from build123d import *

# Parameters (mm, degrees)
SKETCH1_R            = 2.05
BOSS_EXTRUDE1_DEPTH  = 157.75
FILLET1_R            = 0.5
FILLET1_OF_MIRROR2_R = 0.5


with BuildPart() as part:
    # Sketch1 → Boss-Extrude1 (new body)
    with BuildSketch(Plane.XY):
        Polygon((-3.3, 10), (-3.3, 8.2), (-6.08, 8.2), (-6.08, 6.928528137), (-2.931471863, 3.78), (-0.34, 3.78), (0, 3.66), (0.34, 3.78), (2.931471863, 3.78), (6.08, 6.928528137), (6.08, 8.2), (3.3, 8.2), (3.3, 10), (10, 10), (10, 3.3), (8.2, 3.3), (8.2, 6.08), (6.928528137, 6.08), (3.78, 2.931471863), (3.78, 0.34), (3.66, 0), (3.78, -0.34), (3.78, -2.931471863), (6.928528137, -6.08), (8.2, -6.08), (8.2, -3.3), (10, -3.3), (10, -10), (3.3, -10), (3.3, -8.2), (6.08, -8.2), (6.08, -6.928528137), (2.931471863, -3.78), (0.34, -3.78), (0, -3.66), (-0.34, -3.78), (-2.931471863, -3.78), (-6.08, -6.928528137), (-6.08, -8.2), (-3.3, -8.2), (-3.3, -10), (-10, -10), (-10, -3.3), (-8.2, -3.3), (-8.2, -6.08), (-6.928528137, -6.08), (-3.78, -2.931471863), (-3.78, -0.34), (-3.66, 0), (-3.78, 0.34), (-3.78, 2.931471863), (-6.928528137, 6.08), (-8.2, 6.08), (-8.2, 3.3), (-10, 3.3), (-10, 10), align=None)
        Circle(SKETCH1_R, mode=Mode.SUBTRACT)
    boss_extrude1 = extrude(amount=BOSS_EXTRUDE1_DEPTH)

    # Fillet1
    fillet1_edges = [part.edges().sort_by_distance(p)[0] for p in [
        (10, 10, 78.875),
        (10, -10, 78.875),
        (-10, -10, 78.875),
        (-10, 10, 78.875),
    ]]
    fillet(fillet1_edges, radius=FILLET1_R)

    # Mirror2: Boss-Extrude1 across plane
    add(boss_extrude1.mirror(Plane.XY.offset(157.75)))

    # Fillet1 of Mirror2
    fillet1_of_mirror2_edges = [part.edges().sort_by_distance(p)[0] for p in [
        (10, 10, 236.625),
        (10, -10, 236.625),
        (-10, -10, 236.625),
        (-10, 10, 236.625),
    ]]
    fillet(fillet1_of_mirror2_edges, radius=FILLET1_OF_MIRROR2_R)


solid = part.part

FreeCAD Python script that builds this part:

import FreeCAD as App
import Part
import Sketcher

V = App.Vector
Q = App.Units.Quantity


def edges_at(feature, points):
    """Names of the edges that pass closest to the given points."""
    edges = feature.Shape.Edges
    near = lambda p: min(range(len(edges)), key=lambda i: edges[i].distToShape(Part.Vertex(*p))[0])
    return sorted({f"Edge{near(p) + 1}" for p in points})


def add_polygon(sketch, points):
    """Adds a closed chain of lines whose ends are joined by coincident constraints."""
    first, n = sketch.GeometryCount, len(points)
    for a, b in zip(points, points[1:] + points[:1]):
        sketch.addGeometry(Part.LineSegment(App.Vector(*a, 0), App.Vector(*b, 0)), False)
    for i in range(n):
        sketch.addConstraint(Sketcher.Constraint("Coincident", first + i, 2, first + (i + 1) % n, 1))

doc = App.newDocument("Part")
body = doc.addObject("PartDesign::Body", "Body")

sketch1 = body.newObject("Sketcher::SketchObject", "Sketch")
sketch1.AttachmentSupport = (doc.getObject("XY_Plane"), [""])
sketch1.MapMode = "FlatFace"
add_polygon(sketch1, [(-3.3, 8.2), (-3.3, 10), (-10, 10), (-10, 3.3), (-8.2, 3.3), (-8.2, 6.08), (-6.93, 6.08), (-3.78, 2.93), (-3.78, 0.34), (-3.66, 0), (-3.78, -0.34), (-3.78, -2.93), (-6.93, -6.08), (-8.2, -6.08), (-8.2, -3.3), (-10, -3.3), (-10, -10), (-3.3, -10), (-3.3, -8.2), (-6.08, -8.2), (-6.08, -6.93), (-2.93, -3.78), (-0.34, -3.78), (0, -3.66), (0.34, -3.78), (2.93, -3.78), (6.08, -6.93), (6.08, -8.2), (3.3, -8.2), (3.3, -10), (10, -10), (10, -3.3), (8.2, -3.3), (8.2, -6.08), (6.93, -6.08), (3.78, -2.93), (3.78, -0.34), (3.66, 0), (3.78, 0.34), (3.78, 2.93), (6.93, 6.08), (8.2, 6.08), (8.2, 3.3), (10, 3.3), (10, 10), (3.3, 10), (3.3, 8.2), (6.08, 8.2), (6.08, 6.93), (2.93, 3.78), (0.34, 3.78), (0, 3.66), (-0.34, 3.78), (-2.93, 3.78), (-6.08, 6.93), (-6.08, 8.2)])
sketch1.addGeometry(Part.Circle(V(0, 0, 0), V(0, 0, 1), 2.05), False)
sketch1.addConstraint(Sketcher.Constraint("Vertical", 0))
sketch1.addConstraint(Sketcher.Constraint("Horizontal", 1))
sketch1.addConstraint(Sketcher.Constraint("Vertical", 2))
sketch1.addConstraint(Sketcher.Constraint("Horizontal", 3))
sketch1.addConstraint(Sketcher.Constraint("Vertical", 4))
sketch1.addConstraint(Sketcher.Constraint("Horizontal", 5))
sketch1.addConstraint(Sketcher.Constraint("Vertical", 7))
sketch1.addConstraint(Sketcher.Constraint("Vertical", 10))
sketch1.addConstraint(Sketcher.Constraint("Horizontal", 12))
sketch1.addConstraint(Sketcher.Constraint("Vertical", 13))
sketch1.addConstraint(Sketcher.Constraint("Horizontal", 14))
sketch1.addConstraint(Sketcher.Constraint("Vertical", 15))
sketch1.addConstraint(Sketcher.Constraint("Horizontal", 16))
sketch1.addConstraint(Sketcher.Constraint("Vertical", 17))
sketch1.addConstraint(Sketcher.Constraint("Horizontal", 18))
sketch1.addConstraint(Sketcher.Constraint("Vertical", 19))
sketch1.addConstraint(Sketcher.Constraint("Horizontal", 21))
sketch1.addConstraint(Sketcher.Constraint("Horizontal", 24))
sketch1.addConstraint(Sketcher.Constraint("Vertical", 26))
sketch1.addConstraint(Sketcher.Constraint("Horizontal", 27))
sketch1.addConstraint(Sketcher.Constraint("Vertical", 28))
sketch1.addConstraint(Sketcher.Constraint("Horizontal", 29))
sketch1.addConstraint(Sketcher.Constraint("Vertical", 30))
sketch1.addConstraint(Sketcher.Constraint("Horizontal", 31))
sketch1.addConstraint(Sketcher.Constraint("Vertical", 32))
sketch1.addConstraint(Sketcher.Constraint("Horizontal", 33))
sketch1.addConstraint(Sketcher.Constraint("Vertical", 35))
sketch1.addConstraint(Sketcher.Constraint("Vertical", 38))
sketch1.addConstraint(Sketcher.Constraint("Horizontal", 40))
sketch1.addConstraint(Sketcher.Constraint("Vertical", 41))
sketch1.addConstraint(Sketcher.Constraint("Horizontal", 42))
sketch1.addConstraint(Sketcher.Constraint("Vertical", 43))
sketch1.addConstraint(Sketcher.Constraint("Horizontal", 44))
sketch1.addConstraint(Sketcher.Constraint("Vertical", 45))
sketch1.addConstraint(Sketcher.Constraint("Horizontal", 46))
sketch1.addConstraint(Sketcher.Constraint("Vertical", 47))
sketch1.addConstraint(Sketcher.Constraint("Horizontal", 49))
sketch1.addConstraint(Sketcher.Constraint("Horizontal", 52))
sketch1.addConstraint(Sketcher.Constraint("Vertical", 54))
sketch1.addConstraint(Sketcher.Constraint("Horizontal", 55))
sketch1.addConstraint(Sketcher.Constraint("Coincident", 56, 3, -1, 1))
sketch1.addConstraint(Sketcher.Constraint("Symmetric", 0, 2, 28, 2, -1, 1))
sketch1.addConstraint(Sketcher.Constraint("Symmetric", 2, 2, 30, 2, -1, 1))
sketch1.addConstraint(Sketcher.Constraint("Symmetric", 4, 2, 32, 2, -1, 1))
sketch1.addConstraint(Sketcher.Constraint("Symmetric", 6, 2, 34, 2, -1, 1))
sketch1.addConstraint(Sketcher.Constraint("Symmetric", 8, 2, 36, 2, -1, 1))
sketch1.addConstraint(Sketcher.Constraint("Symmetric", 9, 2, 37, 2, -1, 1))
sketch1.addConstraint(Sketcher.Constraint("Symmetric", 11, 2, 39, 2, -1, 1))
sketch1.addConstraint(Sketcher.Constraint("Symmetric", 13, 2, 41, 2, -1, 1))
sketch1.addConstraint(Sketcher.Constraint("Symmetric", 15, 2, 43, 2, -1, 1))
sketch1.addConstraint(Sketcher.Constraint("Symmetric", 17, 2, 45, 2, -1, 1))
sketch1.addConstraint(Sketcher.Constraint("Symmetric", 19, 2, 47, 2, -1, 1))
sketch1.addConstraint(Sketcher.Constraint("Symmetric", 20, 2, 48, 2, -1, 1))
sketch1.addConstraint(Sketcher.Constraint("Symmetric", 22, 2, 50, 2, -1, 1))
sketch1.addConstraint(Sketcher.Constraint("Symmetric", 23, 2, 51, 2, -1, 1))
sketch1.addConstraint(Sketcher.Constraint("Symmetric", 25, 2, 53, 2, -1, 1))
sketch1.addConstraint(Sketcher.Constraint("Symmetric", 21, 2, 23, 2, -2))
sketch1.addConstraint(Sketcher.Constraint("Symmetric", 19, 2, 25, 2, -2))
sketch1.addConstraint(Sketcher.Constraint("Symmetric", 17, 2, 27, 2, -2))
sketch1.addConstraint(Sketcher.Constraint("Symmetric", 15, 2, 29, 2, -2))
sketch1.addConstraint(Sketcher.Constraint("Symmetric", 13, 2, 31, 2, -2))
sketch1.addConstraint(Sketcher.Constraint("Symmetric", 11, 2, 33, 2, -2))
sketch1.addConstraint(Sketcher.Constraint("Symmetric", 10, 2, 34, 2, -2))
sketch1.addConstraint(Sketcher.Constraint("PointOnObject", 8, 2, -1))
sketch1.addConstraint(Sketcher.Constraint("PointOnObject", 22, 2, -2))
sketch1.addConstraint(Sketcher.Constraint("Perpendicular", 6, 11))
sketch1.addConstraint(Sketcher.Constraint("Parallel", 11, 20))
sketch1.addConstraint(Sketcher.Constraint("Perpendicular", 8, 22))
sketch1.addConstraint(Sketcher.Constraint("Perpendicular", 9, 23))
sketch1.addConstraint(Sketcher.Constraint("Perpendicular", 20, 25))
sketch1.addConstraint(Sketcher.Constraint("Parallel", 25, 34))
sketch1.addConstraint(Sketcher.Constraint("Perpendicular", 22, 36))
sketch1.addConstraint(Sketcher.Constraint("Perpendicular", 34, 39))
sketch1.addConstraint(Sketcher.Constraint("Perpendicular", 36, 50))
sketch1.addConstraint(Sketcher.Constraint("Perpendicular", 48, 53))
sketch1.addConstraint(Sketcher.Constraint("Horizontal", 46, 2, 54, 2))
sketch1.addConstraint(Sketcher.Constraint("Equal", 42, 0))
sketch1.addConstraint(Sketcher.Constraint("Equal", 44, 2))
sketch1.addConstraint(Sketcher.Constraint("Equal", 55, 4))
sketch1.addConstraint(Sketcher.Constraint("Equal", 52, 7))
sketch1.addConstraint(Sketcher.Constraint("Equal", 40, 19))
sketch1.addConstraint(Sketcher.Constraint("Equal", 11, 20))
sketch1.addConstraint(Sketcher.Constraint("Equal", 9, 22))
sketch1.addConstraint(Sketcher.Constraint("Diameter", 56, Q("4.1 mm")))
sketch1.addConstraint(Sketcher.Constraint("DistanceX", 1, 2, 1, 1, Q("6.7 mm")))
sketch1.addConstraint(Sketcher.Constraint("DistanceX", 3, 1, 3, 2, Q("1.8 mm")))
sketch1.addConstraint(Sketcher.Constraint("DistanceY", -1, 1, 0, 2, Q("10 mm")))
sketch1.addConstraint(Sketcher.Constraint("DistanceX", 18, 2, 18, 1, Q("2.78 mm")))
sketch1.addConstraint(Sketcher.Constraint("DistanceX", 6, 2, -1, 1, Q("3.78 mm")))
sketch1.addConstraint(Sketcher.Constraint("DistanceY", -1, 1, 7, 2, Q("0.34 mm")))
sketch1.addConstraint(Sketcher.Constraint("DistanceX", 8, 2, -1, 1, Q("3.66 mm")))
sketch1.addConstraint(Sketcher.Constraint("DistanceX", 5, 1, 5, 2, Q("1.271472 mm")))
pad1 = body.newObject("PartDesign::Pad", "Pad")
pad1.Profile = sketch1
pad1.Length = 157.75
doc.recompute()

fillet = body.newObject("PartDesign::Fillet", "Fillet")
fillet.Base = (pad1, edges_at(pad1, [
    (10, 10, 78.875),
    (10, -10, 78.875),
    (-10, -10, 78.875),
    (-10, 10, 78.875),
]))
fillet.Radius = 0.5
doc.recompute()

datumplane = body.newObject("PartDesign::Plane", "DatumPlane")
datumplane.AttachmentSupport = (doc.getObject("XY_Plane"), [""])
datumplane.MapMode = "FlatFace"
datumplane.AttachmentOffset = App.Placement(V(0, 0, 157.75), App.Rotation())
mirrored = body.newObject("PartDesign::Mirrored", "Mirrored")
mirrored.Originals = [pad1]
mirrored.MirrorPlane = (datumplane, [""])
body.Tip = mirrored
doc.recompute()

fillet2 = body.newObject("PartDesign::Fillet", "Fillet001")
fillet2.Base = (mirrored, edges_at(mirrored, [
    (10, 10, 236.625),
    (10, -10, 236.625),
    (-10, -10, 236.625),
    (-10, 10, 236.625),
]))
fillet2.Radius = 0.5

doc.recompute()
